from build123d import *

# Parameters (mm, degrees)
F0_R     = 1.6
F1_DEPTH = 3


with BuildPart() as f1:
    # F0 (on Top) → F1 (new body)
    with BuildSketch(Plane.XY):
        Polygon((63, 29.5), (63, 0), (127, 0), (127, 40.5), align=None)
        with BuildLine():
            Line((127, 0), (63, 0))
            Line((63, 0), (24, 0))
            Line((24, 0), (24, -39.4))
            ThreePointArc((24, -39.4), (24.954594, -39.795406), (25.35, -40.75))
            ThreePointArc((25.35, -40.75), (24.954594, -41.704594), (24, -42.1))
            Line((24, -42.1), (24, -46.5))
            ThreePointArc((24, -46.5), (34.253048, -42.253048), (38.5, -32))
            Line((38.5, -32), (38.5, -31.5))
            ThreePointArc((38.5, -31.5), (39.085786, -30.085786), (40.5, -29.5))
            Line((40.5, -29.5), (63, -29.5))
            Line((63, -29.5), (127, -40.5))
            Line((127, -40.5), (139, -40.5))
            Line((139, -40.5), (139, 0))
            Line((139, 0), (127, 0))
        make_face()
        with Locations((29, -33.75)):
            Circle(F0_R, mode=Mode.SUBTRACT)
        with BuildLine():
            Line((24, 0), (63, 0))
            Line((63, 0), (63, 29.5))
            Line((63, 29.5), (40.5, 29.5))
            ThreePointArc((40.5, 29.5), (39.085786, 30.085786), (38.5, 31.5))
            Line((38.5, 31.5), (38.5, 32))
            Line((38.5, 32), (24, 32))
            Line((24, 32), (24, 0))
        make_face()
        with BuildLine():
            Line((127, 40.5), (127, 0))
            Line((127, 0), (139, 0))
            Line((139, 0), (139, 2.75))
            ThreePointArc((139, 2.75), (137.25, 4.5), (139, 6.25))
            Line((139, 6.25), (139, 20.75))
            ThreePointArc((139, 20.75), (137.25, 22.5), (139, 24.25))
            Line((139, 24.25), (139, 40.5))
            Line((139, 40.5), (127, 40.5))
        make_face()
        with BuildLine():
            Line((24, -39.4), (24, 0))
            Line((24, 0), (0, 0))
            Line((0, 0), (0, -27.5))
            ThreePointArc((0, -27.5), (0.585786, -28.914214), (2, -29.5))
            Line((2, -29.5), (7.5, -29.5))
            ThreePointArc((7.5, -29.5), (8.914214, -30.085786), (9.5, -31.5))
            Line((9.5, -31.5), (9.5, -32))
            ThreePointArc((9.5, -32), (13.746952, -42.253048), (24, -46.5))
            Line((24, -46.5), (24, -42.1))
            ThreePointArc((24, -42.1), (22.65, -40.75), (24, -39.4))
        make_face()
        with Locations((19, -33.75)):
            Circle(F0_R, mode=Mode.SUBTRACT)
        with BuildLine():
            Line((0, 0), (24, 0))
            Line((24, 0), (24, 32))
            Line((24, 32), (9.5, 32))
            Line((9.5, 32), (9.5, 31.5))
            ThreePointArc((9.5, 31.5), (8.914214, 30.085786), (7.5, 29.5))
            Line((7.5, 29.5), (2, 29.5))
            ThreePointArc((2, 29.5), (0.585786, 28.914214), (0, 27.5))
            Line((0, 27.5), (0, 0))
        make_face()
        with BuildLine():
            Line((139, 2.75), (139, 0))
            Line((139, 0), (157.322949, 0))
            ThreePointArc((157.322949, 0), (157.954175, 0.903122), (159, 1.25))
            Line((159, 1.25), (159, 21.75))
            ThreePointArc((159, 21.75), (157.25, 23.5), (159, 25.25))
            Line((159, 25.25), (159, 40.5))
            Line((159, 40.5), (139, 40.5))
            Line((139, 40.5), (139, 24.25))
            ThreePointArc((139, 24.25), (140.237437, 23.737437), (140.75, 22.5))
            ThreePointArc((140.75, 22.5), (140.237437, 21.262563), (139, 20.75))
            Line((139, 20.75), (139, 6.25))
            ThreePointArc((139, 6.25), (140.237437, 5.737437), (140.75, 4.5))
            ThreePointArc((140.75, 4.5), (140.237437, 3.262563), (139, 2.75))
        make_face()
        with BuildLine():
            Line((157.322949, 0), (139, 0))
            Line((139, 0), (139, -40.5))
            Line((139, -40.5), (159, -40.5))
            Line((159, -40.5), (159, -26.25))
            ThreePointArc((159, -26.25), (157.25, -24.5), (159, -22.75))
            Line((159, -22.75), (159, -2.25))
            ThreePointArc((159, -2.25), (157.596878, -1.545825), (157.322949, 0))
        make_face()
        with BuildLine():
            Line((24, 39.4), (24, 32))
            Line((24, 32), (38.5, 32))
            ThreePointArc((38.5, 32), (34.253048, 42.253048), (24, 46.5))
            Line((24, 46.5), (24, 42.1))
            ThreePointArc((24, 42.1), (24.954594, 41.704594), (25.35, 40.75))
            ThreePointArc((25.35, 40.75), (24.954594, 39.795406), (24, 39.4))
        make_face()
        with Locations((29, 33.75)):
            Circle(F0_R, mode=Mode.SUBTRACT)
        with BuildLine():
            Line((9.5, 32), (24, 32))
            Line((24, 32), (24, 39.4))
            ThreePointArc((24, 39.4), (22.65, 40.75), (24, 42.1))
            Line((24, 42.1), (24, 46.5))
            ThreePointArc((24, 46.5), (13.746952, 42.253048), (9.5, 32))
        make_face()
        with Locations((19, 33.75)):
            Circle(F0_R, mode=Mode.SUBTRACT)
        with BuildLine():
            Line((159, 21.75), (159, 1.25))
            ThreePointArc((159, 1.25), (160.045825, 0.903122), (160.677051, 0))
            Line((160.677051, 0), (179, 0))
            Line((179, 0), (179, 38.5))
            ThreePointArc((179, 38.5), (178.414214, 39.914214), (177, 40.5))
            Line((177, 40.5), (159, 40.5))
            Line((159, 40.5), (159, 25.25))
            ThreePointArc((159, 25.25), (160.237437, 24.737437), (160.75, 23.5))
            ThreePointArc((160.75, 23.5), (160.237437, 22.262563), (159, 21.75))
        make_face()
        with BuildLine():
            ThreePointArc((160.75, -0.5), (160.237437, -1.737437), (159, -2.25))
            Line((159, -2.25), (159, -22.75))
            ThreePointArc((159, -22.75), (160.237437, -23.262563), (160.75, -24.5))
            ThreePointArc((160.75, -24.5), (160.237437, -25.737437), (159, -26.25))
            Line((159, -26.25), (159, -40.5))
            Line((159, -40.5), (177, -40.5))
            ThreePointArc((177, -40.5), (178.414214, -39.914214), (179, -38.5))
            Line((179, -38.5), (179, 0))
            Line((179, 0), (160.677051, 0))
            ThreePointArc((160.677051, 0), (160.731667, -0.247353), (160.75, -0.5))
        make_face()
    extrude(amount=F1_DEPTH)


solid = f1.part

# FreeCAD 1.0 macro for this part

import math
import FreeCAD as App
import Part
import Sketcher

doc = App.newDocument("Part")
params = doc.addObject("Spreadsheet::Sheet", "Params")
for row, (alias, value) in enumerate([
    ("sketch1_radius", "1.999999 mm"),
    ("sketch1_diameter", "3.2 mm"),
    ("sketch1_radius2", "14.500001 mm"),
    ("sketch1_width", "50 mm"),
    ("sketch1_height", "55 mm"),
    ("pad1_length", "3 mm"),
], start=1):
    params.set(f"A{row}", alias)
    params.set(f"B{row}", "=" + value)
    params.setAlias(f"B{row}", alias)

body = doc.addObject("PartDesign::Body", "Body")

# Sketch on XY plane
sketch1 = body.newObject("Sketcher::SketchObject", "Sketch")
sketch1.AttachmentSupport = (doc.getObject("XY_Plane"), [""])
sketch1.MapMode = "FlatFace"
sketch1.addGeometry(Part.LineSegment(App.Vector(127, 40.5, 0), App.Vector(63, 29.5, 0)), False)
sketch1.addGeometry(Part.LineSegment(App.Vector(63, 29.5, 0), App.Vector(40.5, 29.5, 0)), False)
sketch1.addGeometry(Part.ArcOfCircle(Part.Circle(App.Vector(40.5, 31.5, 0), App.Vector(0, 0, 1), 2), math.radians(180), math.radians(270)), False)
sketch1.addGeometry(Part.LineSegment(App.Vector(38.5, 31.5, 0), App.Vector(38.5, 32, 0)), False)
sketch1.addGeometry(Part.ArcOfCircle(Part.Circle(App.Vector(24, 32, 0), App.Vector(0, 0, 1), 14.5), math.radians(0), math.radians(90)), False)
sketch1.addGeometry(Part.ArcOfCircle(Part.Circle(App.Vector(24, 32, 0), App.Vector(0, 0, 1), 14.5), math.radians(90), math.radians(180)), False)
sketch1.addGeometry(Part.LineSegment(App.Vector(9.5, 32, 0), App.Vector(9.5, 31.5, 0)), False)
sketch1.addGeometry(Part.ArcOfCircle(Part.Circle(App.Vector(7.5, 31.5, 0), App.Vector(0, 0, 1), 2), math.radians(-90), math.radians(0)), False)
sketch1.addGeometry(Part.LineSegment(App.Vector(7.5, 29.5, 0), App.Vector(2, 29.5, 0)), False)
sketch1.addGeometry(Part.ArcOfCircle(Part.Circle(App.Vector(2, 27.5, 0), App.Vector(0, 0, 1), 2), math.radians(90), math.radians(180)), False)
sketch1.addGeometry(Part.LineSegment(App.Vector(0, 27.5, 0), App.Vector(0, -27.5, 0)), False)
sketch1.addGeometry(Part.ArcOfCircle(Part.Circle(App.Vector(2, -27.5, 0), App.Vector(0, 0, 1), 2), math.radians(180), math.radians(270)), False)
sketch1.addGeometry(Part.LineSegment(App.Vector(2, -29.5, 0), App.Vector(7.5, -29.5, 0)), False)
sketch1.addGeometry(Part.ArcOfCircle(Part.Circle(App.Vector(7.5, -31.5, 0), App.Vector(0, 0, 1), 2), math.radians(0), math.radians(90)), False)
sketch1.addGeometry(Part.LineSegment(App.Vector(9.5, -31.5, 0), App.Vector(9.5, -32, 0)), False)
sketch1.addGeometry(Part.ArcOfCircle(Part.Circle(App.Vector(24, -32, 0), App.Vector(0, 0, 1), 14.5), math.radians(-180), math.radians(-90)), False)
sketch1.addGeometry(Part.ArcOfCircle(Part.Circle(App.Vector(24, -32, 0), App.Vector(0, 0, 1), 14.5), math.radians(-90), math.radians(0)), False)
sketch1.addGeometry(Part.LineSegment(App.Vector(38.5, -32, 0), App.Vector(38.5, -31.5, 0)), False)
sketch1.addGeometry(Part.ArcOfCircle(Part.Circle(App.Vector(40.5, -31.5, 0), App.Vector(0, 0, 1), 2), math.radians(90), math.radians(180)), False)
sketch1.addGeometry(Part.LineSegment(App.Vector(40.5, -29.5, 0), App.Vector(63, -29.5, 0)), False)
sketch1.addGeometry(Part.LineSegment(App.Vector(63, -29.5, 0), App.Vector(127, -40.5, 0)), False)
sketch1.addGeometry(Part.LineSegment(App.Vector(127, -40.5, 0), App.Vector(177, -40.5, 0)), False)
sketch1.addGeometry(Part.ArcOfCircle(Part.Circle(App.Vector(177, -38.5, 0), App.Vector(0, 0, 1), 2), math.radians(-90), math.radians(0)), False)
sketch1.addGeometry(Part.LineSegment(App.Vector(179, -38.5, 0), App.Vector(179, 38.5, 0)), False)
sketch1.addGeometry(Part.ArcOfCircle(Part.Circle(App.Vector(177, 38.5, 0), App.Vector(0, 0, 1), 2), math.radians(0), math.radians(90)), False)
sketch1.addGeometry(Part.LineSegment(App.Vector(177, 40.5, 0), App.Vector(127, 40.5, 0)), False)
sketch1.addGeometry(Part.ArcOfCircle(Part.Circle(App.Vector(159, -24.5, 0), App.Vector(0, 0, 1), 1.8), math.radians(90), math.radians(270)), False)
sketch1.addGeometry(Part.ArcOfCircle(Part.Circle(App.Vector(159, -24.5, 0), App.Vector(0, 0, 1), 1.7), math.radians(0), math.radians(90)), False)
sketch1.addGeometry(Part.ArcOfCircle(Part.Circle(App.Vector(159, -24.5, 0), App.Vector(0, 0, 1), 1.7), math.radians(-90), math.radians(0)), False)
sketch1.addGeometry(Part.ArcOfCircle(Part.Circle(App.Vector(159, -0.5, 0), App.Vector(0, 0, 1), 1.7), math.radians(163), math.radians(270)), False)
sketch1.addGeometry(Part.ArcOfCircle(Part.Circle(App.Vector(159, -0.5, 0), App.Vector(0, 0, 1), 1.7), math.radians(90), math.radians(163)), False)
sketch1.addGeometry(Part.ArcOfCircle(Part.Circle(App.Vector(159, -0.5, 0), App.Vector(0, 0, 1), 1.7), math.radians(17), math.radians(90)), False)
sketch1.addGeometry(Part.ArcOfCircle(Part.Circle(App.Vector(159, -0.5, 0), App.Vector(0, 0, 1), 1.7), math.radians(0), math.radians(16.6)), False)
sketch1.addGeometry(Part.ArcOfCircle(Part.Circle(App.Vector(159, -0.5, 0), App.Vector(0, 0, 1), 1.7), math.radians(-90), math.radians(0)), False)
sketch1.addGeometry(Part.ArcOfCircle(Part.Circle(App.Vector(159, 23.5, 0), App.Vector(0, 0, 1), 1.8), math.radians(90), math.radians(270)), False)
sketch1.addGeometry(Part.ArcOfCircle(Part.Circle(App.Vector(159, 23.5, 0), App.Vector(0, 0, 1), 1.7), math.radians(0), math.radians(90)), False)
sketch1.addGeometry(Part.ArcOfCircle(Part.Circle(App.Vector(159, 23.5, 0), App.Vector(0, 0, 1), 1.7), math.radians(-90), math.radians(0)), False)
sketch1.addGeometry(Part.ArcOfCircle(Part.Circle(App.Vector(24, -40.8, 0), App.Vector(0, 0, 1), 1.4), math.radians(0), math.radians(90)), False)
sketch1.addGeometry(Part.ArcOfCircle(Part.Circle(App.Vector(24, -40.7, 0), App.Vector(0, 0, 1), 1.4), math.radians(-90), math.radians(0)), False)
sketch1.addGeometry(Part.ArcOfCircle(Part.Circle(App.Vector(24, -40.8, 0), App.Vector(0, 0, 1), 1.4), math.radians(90), math.radians(270)), False)
sketch1.addGeometry(Part.Circle(App.Vector(19, -33.8, 0), App.Vector(0, 0, 1), 1.6), False)
sketch1.addGeometry(Part.Circle(App.Vector(29, -33.8, 0), App.Vector(0, 0, 1), 1.6), False)
sketch1.addGeometry(Part.Circle(App.Vector(19, 33.8, 0), App.Vector(0, 0, 1), 1.6), False)
sketch1.addGeometry(Part.Circle(App.Vector(29, 33.8, 0), App.Vector(0, 0, 1), 1.6), False)
sketch1.addGeometry(Part.ArcOfCircle(Part.Circle(App.Vector(24, 40.7, 0), App.Vector(0, 0, 1), 1.4), math.radians(0), math.radians(90)), False)
sketch1.addGeometry(Part.ArcOfCircle(Part.Circle(App.Vector(24, 40.8, 0), App.Vector(0, 0, 1), 1.4), math.radians(-90), math.radians(0)), False)
sketch1.addGeometry(Part.ArcOfCircle(Part.Circle(App.Vector(24, 40.8, 0), App.Vector(0, 0, 1), 1.4), math.radians(90), math.radians(270)), False)
sketch1.addGeometry(Part.ArcOfCircle(Part.Circle(App.Vector(139, 4.5, 0), App.Vector(0, 0, 1), 1.8), math.radians(90), math.radians(270)), False)
sketch1.addGeometry(Part.ArcOfCircle(Part.Circle(App.Vector(139, 4.5, 0), App.Vector(0, 0, 1), 1.7), math.radians(0), math.radians(90)), False)
sketch1.addGeometry(Part.ArcOfCircle(Part.Circle(App.Vector(139, 4.5, 0), App.Vector(0, 0, 1), 1.7), math.radians(-90), math.radians(0)), False)
sketch1.addGeometry(Part.ArcOfCircle(Part.Circle(App.Vector(139, 22.5, 0), App.Vector(0, 0, 1), 1.8), math.radians(90), math.radians(270)), False)
sketch1.addGeometry(Part.ArcOfCircle(Part.Circle(App.Vector(139, 22.5, 0), App.Vector(0, 0, 1), 1.7), math.radians(0), math.radians(90)), False)
sketch1.addGeometry(Part.ArcOfCircle(Part.Circle(App.Vector(139, 22.5, 0), App.Vector(0, 0, 1), 1.7), math.radians(-90), math.radians(0)), False)
sketch1.addConstraint(Sketcher.Constraint("Coincident", 0, 2, 1, 1))
sketch1.addConstraint(Sketcher.Constraint("Tangent", 1, 2, 2, 2))
sketch1.addConstraint(Sketcher.Constraint("Tangent", 2, 1, 3, 1))
sketch1.addConstraint(Sketcher.Constraint("Tangent", 3, 2, 4, 1))
sketch1.addConstraint(Sketcher.Constraint("Tangent", 4, 2, 5, 1))
sketch1.addConstraint(Sketcher.Constraint("Tangent", 5, 2, 6, 1))
sketch1.addConstraint(Sketcher.Constraint("Tangent", 6, 2, 7, 2))
sketch1.addConstraint(Sketcher.Constraint("Tangent", 7, 1, 8, 1))
sketch1.addConstraint(Sketcher.Constraint("Tangent", 8, 2, 9, 1))
sketch1.addConstraint(Sketcher.Constraint("Tangent", 9, 2, 10, 1))
sketch1.addConstraint(Sketcher.Constraint("Tangent", 10, 2, 11, 1))
sketch1.addConstraint(Sketcher.Constraint("Tangent", 11, 2, 12, 1))
sketch1.addConstraint(Sketcher.Constraint("Tangent", 12, 2, 13, 2))
sketch1.addConstraint(Sketcher.Constraint("Tangent", 13, 1, 14, 1))
sketch1.addConstraint(Sketcher.Constraint("Tangent", 14, 2, 15, 1))
sketch1.addConstraint(Sketcher.Constraint("Tangent", 15, 2, 16, 1))
sketch1.addConstraint(Sketcher.Constraint("Tangent", 16, 2, 17, 1))
sketch1.addConstraint(Sketcher.Constraint("Tangent", 17, 2, 18, 2))
sketch1.addConstraint(Sketcher.Constraint("Tangent", 18, 1, 19, 1))
sketch1.addConstraint(Sketcher.Constraint("Coincident", 19, 2, 20, 1))
sketch1.addConstraint(Sketcher.Constraint("Coincident", 20, 2, 21, 1))
sketch1.addConstraint(Sketcher.Constraint("Tangent", 21, 2, 22, 1))
sketch1.addConstraint(Sketcher.Constraint("Tangent", 22, 2, 23, 1))
sketch1.addConstraint(Sketcher.Constraint("Tangent", 23, 2, 24, 1))
sketch1.addConstraint(Sketcher.Constraint("Tangent", 24, 2, 25, 1))
sketch1.addConstraint(Sketcher.Constraint("Coincident", 25, 2, 0, 1))
sketch1.addConstraint(Sketcher.Constraint("Tangent", 26, 1, 27, 2))
sketch1.addConstraint(Sketcher.Constraint("Tangent", 27, 1, 28, 2))
sketch1.addConstraint(Sketcher.Constraint("Tangent", 28, 1, 26, 2))
sketch1.addConstraint(Sketcher.Constraint("Tangent", 29, 1, 30, 2))
sketch1.addConstraint(Sketcher.Constraint("Tangent", 30, 1, 31, 2))
sketch1.addConstraint(Sketcher.Constraint("Coincident", 31, 1, 32, 2))
sketch1.addConstraint(Sketcher.Constraint("Coincident", 32, 1, 33, 2))
sketch1.addConstraint(Sketcher.Constraint("Tangent", 33, 1, 29, 2))
sketch1.addConstraint(Sketcher.Constraint("Tangent", 34, 1, 35, 2))
sketch1.addConstraint(Sketcher.Constraint("Tangent", 35, 1, 36, 2))
sketch1.addConstraint(Sketcher.Constraint("Tangent", 36, 1, 34, 2))
sketch1.addConstraint(Sketcher.Constraint("Tangent", 37, 1, 38, 2))
sketch1.addConstraint(Sketcher.Constraint("Tangent", 38, 1, 39, 2))
sketch1.addConstraint(Sketcher.Constraint("Tangent", 39, 1, 37, 2))
sketch1.addConstraint(Sketcher.Constraint("Tangent", 44, 1, 45, 2))
sketch1.addConstraint(Sketcher.Constraint("Tangent", 45, 1, 46, 2))
sketch1.addConstraint(Sketcher.Constraint("Tangent", 46, 1, 44, 2))
sketch1.addConstraint(Sketcher.Constraint("Tangent", 47, 1, 48, 2))
sketch1.addConstraint(Sketcher.Constraint("Tangent", 48, 1, 49, 2))
sketch1.addConstraint(Sketcher.Constraint("Tangent", 49, 1, 47, 2))
sketch1.addConstraint(Sketcher.Constraint("Tangent", 50, 1, 51, 2))
sketch1.addConstraint(Sketcher.Constraint("Tangent", 51, 1, 52, 2))
sketch1.addConstraint(Sketcher.Constraint("Tangent", 52, 1, 50, 2))
sketch1.addConstraint(Sketcher.Constraint("Horizontal", 1))
sketch1.addConstraint(Sketcher.Constraint("Vertical", 3))
sketch1.addConstraint(Sketcher.Constraint("Vertical", 6))
sketch1.addConstraint(Sketcher.Constraint("Horizontal", 8))
sketch1.addConstraint(Sketcher.Constraint("Vertical", 10))
sketch1.addConstraint(Sketcher.Constraint("Horizontal", 12))
sketch1.addConstraint(Sketcher.Constraint("Vertical", 14))
sketch1.addConstraint(Sketcher.Constraint("Vertical", 17))
sketch1.addConstraint(Sketcher.Constraint("Horizontal", 19))
sketch1.addConstraint(Sketcher.Constraint("Horizontal", 21))
sketch1.addConstraint(Sketcher.Constraint("Vertical", 23))
sketch1.addConstraint(Sketcher.Constraint("Horizontal", 25))
sketch1.addConstraint(Sketcher.Constraint("Coincident", 31, 3, 29, 3))
sketch1.addConstraint(Sketcher.Constraint("Equal", 4, 5))
sketch1.addConstraint(Sketcher.Constraint("Equal", 2, 7))
sketch1.addConstraint(Sketcher.Constraint("Equal", 7, 9))
sketch1.addConstraint(Sketcher.Constraint("Equal", 9, 11))
sketch1.addConstraint(Sketcher.Constraint("Equal", 11, 13))
sketch1.addConstraint(Sketcher.Constraint("Equal", 5, 15))
sketch1.addConstraint(Sketcher.Constraint("Equal", 15, 16))
sketch1.addConstraint(Sketcher.Constraint("Equal", 13, 18))
sketch1.addConstraint(Sketcher.Constraint("Equal", 18, 22))
sketch1.addConstraint(Sketcher.Constraint("Equal", 22, 24))
sketch1.addConstraint(Sketcher.Constraint("Equal", 28, 29))
sketch1.addConstraint(Sketcher.Constraint("Equal", 31, 33))
sketch1.addConstraint(Sketcher.Constraint("Equal", 33, 34))
sketch1.addConstraint(Sketcher.Constraint("Equal", 40, 41))
sketch1.addConstraint(Sketcher.Constraint("Equal", 41, 42))
sketch1.addConstraint(Sketcher.Constraint("Equal", 42, 43))
sketch1.addConstraint(Sketcher.Constraint("Equal", 39, 44))
sketch1.addConstraint(Sketcher.Constraint("Equal", 36, 47))
sketch1.addConstraint(Sketcher.Constraint("Equal", 49, 50))
sketch1.addConstraint(Sketcher.Constraint("Symmetric", 9, 2, 10, 2, -1, 1))
sketch1.addConstraint(Sketcher.Constraint("Symmetric", 4, 3, 15, 3, -1))
sketch1.addConstraint(Sketcher.Constraint("Symmetric", 40, 3, 42, 3, -1))
sketch1.addConstraint(Sketcher.Constraint("Symmetric", 41, 3, 43, 3, -1))
sketch1.addConstraint(Sketcher.Constraint("Symmetric", 37, 3, 44, 3, -1))
sketch1.addConstraint(Sketcher.Constraint("Symmetric", 0, 2, 19, 2, -1))
sketch1.addConstraint(Sketcher.Constraint("Symmetric", 20, 2, 25, 2, -1))
sketch1.addConstraint(Sketcher.Constraint("PointOnObject", 29, 1, -1))
sketch1.addConstraint(Sketcher.Constraint("PointOnObject", 31, 1, -1))
sketch1.addConstraint(Sketcher.Constraint("Horizontal", 2, 3, 7, 3))
sketch1.addConstraint(Sketcher.Constraint("Horizontal", 40, 3, 41, 3))
sketch1.addConstraint(Sketcher.Constraint("Horizontal", 28, 3, 27, 1))
sketch1.addConstraint(Sketcher.Constraint("Horizontal", 33, 3, 32, 1))
sketch1.addConstraint(Sketcher.Constraint("Horizontal", 36, 3, 35, 1))
sketch1.addConstraint(Sketcher.Constraint("Horizontal", 39, 3, 37, 1))
sketch1.addConstraint(Sketcher.Constraint("Horizontal", 46, 3, 44, 1))
sketch1.addConstraint(Sketcher.Constraint("Horizontal", 49, 3, 48, 1))
sketch1.addConstraint(Sketcher.Constraint("Horizontal", 52, 3, 51, 1))
sketch1.addConstraint(Sketcher.Constraint("Vertical", 28, 3, 29, 3))
sketch1.addConstraint(Sketcher.Constraint("Vertical", 33, 3, 34, 3))
sketch1.addConstraint(Sketcher.Constraint("Vertical", 16, 3, 37, 3))
sketch1.addConstraint(Sketcher.Constraint("Vertical", 49, 3, 50, 3))
sketch1.addConstraint(Sketcher.Constraint("Vertical", 46, 3, 4, 2))
sketch1.addConstraint(Sketcher.Constraint("Vertical", 4, 2, 15, 2))
sketch1.addConstraint(Sketcher.Constraint("Vertical", 36, 3, 26, 1))
sketch1.addConstraint(Sketcher.Constraint("Vertical", 26, 1, 28, 1))
sketch1.addConstraint(Sketcher.Constraint("Vertical", 28, 1, 30, 1))
sketch1.addConstraint(Sketcher.Constraint("Vertical", 30, 1, 33, 1))
sketch1.addConstraint(Sketcher.Constraint("Vertical", 33, 1, 34, 1))
sketch1.addConstraint(Sketcher.Constraint("Vertical", 34, 1, 36, 1))
sketch1.addConstraint(Sketcher.Constraint("Vertical", 15, 2, 38, 1))
sketch1.addConstraint(Sketcher.Constraint("Vertical", 38, 1, 39, 1))
sketch1.addConstraint(Sketcher.Constraint("Vertical", 39, 1, 45, 1))
sketch1.addConstraint(Sketcher.Constraint("Vertical", 45, 1, 46, 1))
sketch1.addConstraint(Sketcher.Constraint("Vertical", 52, 3, 47, 1))
sketch1.addConstraint(Sketcher.Constraint("Vertical", 47, 1, 49, 1))
sketch1.addConstraint(Sketcher.Constraint("Vertical", 49, 1, 50, 1))
sketch1.addConstraint(Sketcher.Constraint("Vertical", 50, 1, 52, 1))
sketch1.addConstraint(Sketcher.Constraint("Radius", 2, 1.999999))
sketch1.addConstraint(Sketcher.Constraint("Diameter", 40, 3.2))
sketch1.addConstraint(Sketcher.Constraint("Radius", 4, 14.500001))
sketch1.addConstraint(Sketcher.Constraint("DistanceX", 21, 1, 21, 2, 50.0))
sketch1.addConstraint(Sketcher.Constraint("DistanceY", 10, 2, 10, 1, 55.0))
sketch1.addConstraint(Sketcher.Constraint("DistanceY", 23, 1, 23, 2, 77.0))
sketch1.addConstraint(Sketcher.Constraint("Radius", 26, 1.75))
sketch1.addConstraint(Sketcher.Constraint("Radius", 37, 1.350001))
sketch1.addConstraint(Sketcher.Constraint("DistanceX", 1, 2, 1, 1, 22.5))
sketch1.addConstraint(Sketcher.Constraint("DistanceX", 8, 2, 8, 1, 5.5))
sketch1.addConstraint(Sketcher.Constraint("DistanceY", 3, 1, 3, 2, 0.5))
sketch1.addConstraint(Sketcher.Constraint("DistanceX", -1, 1, 22, 3, 177.000001))
sketch1.addConstraint(Sketcher.Constraint("DistanceX", -1, 1, 26, 3, 159.0))
sketch1.addConstraint(Sketcher.Constraint("DistanceX", -1, 1, 40, 3, 19.0))
sketch1.addConstraint(Sketcher.Constraint("DistanceX", -1, 1, 41, 3, 29.0))
sketch1.addConstraint(Sketcher.Constraint("DistanceX", -1, 1, 47, 3, 139.0))
sketch1.addConstraint(Sketcher.Constraint("DistanceY", 26, 3, -1, 1, 24.5))
sketch1.addConstraint(Sketcher.Constraint("DistanceY", 29, 3, -1, 1, 0.500001))
sketch1.addConstraint(Sketcher.Constraint("DistanceY", -1, 1, 34, 3, 23.5))
sketch1.addConstraint(Sketcher.Constraint("DistanceY", -1, 1, 47, 3, 4.5))
sketch1.addConstraint(Sketcher.Constraint("DistanceY", -1, 1, 50, 3, 22.5))
sketch1.addConstraint(Sketcher.Constraint("DistanceY", 38, 1, -1, 1, 42.1))
sketch1.addConstraint(Sketcher.Constraint("DistanceY", 40, 3, -1, 1, 33.75))
sketch1.addConstraint(Sketcher.Constraint("Radius", 32, 1.749971))
sketch1.setExpression("Constraints[119]", "Params.sketch1_radius")
sketch1.setExpression("Constraints[120]", "Params.sketch1_diameter")
sketch1.setExpression("Constraints[121]", "Params.sketch1_radius2")
sketch1.setExpression("Constraints[122]", "Params.sketch1_width")
sketch1.setExpression("Constraints[123]", "Params.sketch1_height")
pad1 = body.newObject("PartDesign::Pad", "Pad")
pad1.Profile = sketch1
pad1.setExpression("Length", "Params.pad1_length")

doc.recompute()
